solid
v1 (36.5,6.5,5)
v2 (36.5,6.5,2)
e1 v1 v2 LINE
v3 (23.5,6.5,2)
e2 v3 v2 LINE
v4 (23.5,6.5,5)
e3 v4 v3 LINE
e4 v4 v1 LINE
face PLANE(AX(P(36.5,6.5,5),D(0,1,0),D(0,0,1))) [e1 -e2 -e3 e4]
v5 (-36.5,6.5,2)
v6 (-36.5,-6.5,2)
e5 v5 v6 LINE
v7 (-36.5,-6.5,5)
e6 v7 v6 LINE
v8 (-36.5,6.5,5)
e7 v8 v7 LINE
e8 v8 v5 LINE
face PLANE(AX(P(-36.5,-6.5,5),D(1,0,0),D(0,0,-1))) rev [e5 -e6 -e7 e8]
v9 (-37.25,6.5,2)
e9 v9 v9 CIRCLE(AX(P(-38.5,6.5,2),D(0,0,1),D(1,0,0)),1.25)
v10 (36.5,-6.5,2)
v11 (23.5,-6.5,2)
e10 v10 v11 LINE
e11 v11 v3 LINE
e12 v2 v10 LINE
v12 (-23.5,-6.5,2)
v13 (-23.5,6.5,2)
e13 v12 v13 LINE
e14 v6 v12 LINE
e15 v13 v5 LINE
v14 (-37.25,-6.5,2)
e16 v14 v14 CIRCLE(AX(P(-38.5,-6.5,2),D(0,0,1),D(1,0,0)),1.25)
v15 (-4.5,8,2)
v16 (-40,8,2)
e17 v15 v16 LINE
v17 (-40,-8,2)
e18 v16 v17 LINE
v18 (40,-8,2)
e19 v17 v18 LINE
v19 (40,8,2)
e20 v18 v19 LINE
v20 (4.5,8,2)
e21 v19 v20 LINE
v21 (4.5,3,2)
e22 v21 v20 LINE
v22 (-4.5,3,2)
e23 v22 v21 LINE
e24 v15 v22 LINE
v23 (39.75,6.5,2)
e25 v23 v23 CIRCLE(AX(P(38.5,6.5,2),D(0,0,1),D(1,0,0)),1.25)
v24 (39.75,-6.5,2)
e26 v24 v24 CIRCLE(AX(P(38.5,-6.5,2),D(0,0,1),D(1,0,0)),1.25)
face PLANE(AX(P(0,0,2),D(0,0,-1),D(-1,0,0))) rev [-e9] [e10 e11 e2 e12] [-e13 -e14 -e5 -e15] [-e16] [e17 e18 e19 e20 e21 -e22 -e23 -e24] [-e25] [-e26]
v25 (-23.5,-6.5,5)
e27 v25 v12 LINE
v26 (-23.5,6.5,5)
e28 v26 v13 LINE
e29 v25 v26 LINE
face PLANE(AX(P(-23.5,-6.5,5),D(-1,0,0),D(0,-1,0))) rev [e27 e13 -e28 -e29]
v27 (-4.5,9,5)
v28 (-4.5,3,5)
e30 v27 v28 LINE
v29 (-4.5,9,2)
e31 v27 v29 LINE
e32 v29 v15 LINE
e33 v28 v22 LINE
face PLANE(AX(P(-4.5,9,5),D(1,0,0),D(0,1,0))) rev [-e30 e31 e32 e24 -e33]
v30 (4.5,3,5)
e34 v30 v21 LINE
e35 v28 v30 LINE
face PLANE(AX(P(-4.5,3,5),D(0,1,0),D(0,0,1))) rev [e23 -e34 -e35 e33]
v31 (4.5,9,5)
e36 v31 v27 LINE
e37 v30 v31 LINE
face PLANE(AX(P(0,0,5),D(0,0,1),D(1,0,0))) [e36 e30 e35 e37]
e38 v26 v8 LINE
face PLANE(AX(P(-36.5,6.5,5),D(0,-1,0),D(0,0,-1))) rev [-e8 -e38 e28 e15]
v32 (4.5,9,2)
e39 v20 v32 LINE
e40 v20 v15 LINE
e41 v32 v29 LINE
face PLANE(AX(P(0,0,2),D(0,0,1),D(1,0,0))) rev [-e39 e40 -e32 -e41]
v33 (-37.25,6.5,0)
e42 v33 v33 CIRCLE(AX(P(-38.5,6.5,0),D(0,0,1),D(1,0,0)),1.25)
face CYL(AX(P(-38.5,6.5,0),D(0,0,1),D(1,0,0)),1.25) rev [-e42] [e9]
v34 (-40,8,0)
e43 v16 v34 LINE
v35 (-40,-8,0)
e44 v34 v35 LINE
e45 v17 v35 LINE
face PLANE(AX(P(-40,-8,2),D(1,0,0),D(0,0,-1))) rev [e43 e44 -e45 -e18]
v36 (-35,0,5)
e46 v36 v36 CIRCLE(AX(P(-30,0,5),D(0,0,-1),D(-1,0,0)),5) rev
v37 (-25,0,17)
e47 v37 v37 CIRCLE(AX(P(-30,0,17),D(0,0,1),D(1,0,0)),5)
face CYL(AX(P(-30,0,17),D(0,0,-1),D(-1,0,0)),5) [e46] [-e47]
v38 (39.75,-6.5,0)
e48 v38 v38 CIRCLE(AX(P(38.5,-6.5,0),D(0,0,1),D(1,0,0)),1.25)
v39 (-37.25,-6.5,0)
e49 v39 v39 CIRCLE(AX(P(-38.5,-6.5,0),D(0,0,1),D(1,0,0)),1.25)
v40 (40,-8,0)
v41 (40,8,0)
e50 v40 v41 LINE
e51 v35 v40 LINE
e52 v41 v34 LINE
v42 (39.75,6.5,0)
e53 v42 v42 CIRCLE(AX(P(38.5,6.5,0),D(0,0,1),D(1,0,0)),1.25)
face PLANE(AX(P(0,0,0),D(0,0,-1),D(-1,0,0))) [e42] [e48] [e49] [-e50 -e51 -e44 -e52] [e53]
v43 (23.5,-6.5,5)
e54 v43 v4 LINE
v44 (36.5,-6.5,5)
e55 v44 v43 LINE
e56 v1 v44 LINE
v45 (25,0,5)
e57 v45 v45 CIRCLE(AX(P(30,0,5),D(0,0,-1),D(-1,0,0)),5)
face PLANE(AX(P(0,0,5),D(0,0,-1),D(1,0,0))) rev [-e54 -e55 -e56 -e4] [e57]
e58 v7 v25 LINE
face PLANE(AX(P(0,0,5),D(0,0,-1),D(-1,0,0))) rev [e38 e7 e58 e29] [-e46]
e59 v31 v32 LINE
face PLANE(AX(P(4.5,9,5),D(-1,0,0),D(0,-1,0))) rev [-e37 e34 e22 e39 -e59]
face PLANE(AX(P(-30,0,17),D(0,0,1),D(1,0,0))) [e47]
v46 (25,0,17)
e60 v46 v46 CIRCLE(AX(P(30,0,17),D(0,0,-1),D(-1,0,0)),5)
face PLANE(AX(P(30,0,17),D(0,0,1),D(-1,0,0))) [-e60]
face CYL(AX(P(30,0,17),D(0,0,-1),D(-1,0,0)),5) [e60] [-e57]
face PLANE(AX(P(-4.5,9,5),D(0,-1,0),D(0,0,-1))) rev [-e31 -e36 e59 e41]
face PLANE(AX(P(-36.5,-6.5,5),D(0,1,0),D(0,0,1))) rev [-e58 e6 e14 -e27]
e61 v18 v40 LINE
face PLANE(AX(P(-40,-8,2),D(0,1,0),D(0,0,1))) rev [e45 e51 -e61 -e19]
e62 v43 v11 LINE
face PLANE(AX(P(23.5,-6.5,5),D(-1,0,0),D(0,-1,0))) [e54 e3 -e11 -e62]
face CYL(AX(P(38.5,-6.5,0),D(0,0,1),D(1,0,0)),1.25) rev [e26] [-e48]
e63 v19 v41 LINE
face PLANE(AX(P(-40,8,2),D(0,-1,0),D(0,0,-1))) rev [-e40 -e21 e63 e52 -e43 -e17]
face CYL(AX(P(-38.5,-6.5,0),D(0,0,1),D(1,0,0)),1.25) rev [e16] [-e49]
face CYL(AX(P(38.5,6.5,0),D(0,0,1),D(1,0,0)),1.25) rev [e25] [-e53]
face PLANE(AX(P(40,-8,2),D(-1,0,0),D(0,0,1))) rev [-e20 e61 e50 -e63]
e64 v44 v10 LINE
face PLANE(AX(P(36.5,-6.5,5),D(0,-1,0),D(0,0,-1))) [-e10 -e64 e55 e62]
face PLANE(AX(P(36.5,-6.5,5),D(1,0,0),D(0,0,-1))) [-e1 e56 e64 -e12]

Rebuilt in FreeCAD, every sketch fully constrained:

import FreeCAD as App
import Part
import Sketcher

V = App.Vector
Q = App.Units.Quantity


def add_polygon(sketch, points):
    """Adds a closed chain of lines whose ends are joined by coincident constraints."""
    first, n = sketch.GeometryCount, len(points)
    for a, b in zip(points, points[1:] + points[:1]):
        sketch.addGeometry(Part.LineSegment(App.Vector(*a, 0), App.Vector(*b, 0)), False)
    for i in range(n):
        sketch.addConstraint(Sketcher.Constraint("Coincident", first + i, 2, first + (i + 1) % n, 1))

doc = App.newDocument("Part")
params = doc.addObject("Spreadsheet::Sheet", "Params")
for row, (alias, value) in enumerate([
    ("sketch1_width", "80 mm"),
    ("sketch1_height", "16 mm"),
    ("pad1_length", "2 mm"),
    ("sketch2_diameter", "2.5 mm"),
    ("sketch3_width", "13 mm"),
    ("pad2_length", "3 mm"),
    ("sketch4_diameter", "10 mm"),
    ("pad3_length", "12 mm"),
    ("sketch5_width", "9 mm"),
    ("sketch5_height", "6 mm"),
    ("pad4_length", "3 mm"),
], start=1):
    params.set(f"A{row}", alias)
    params.set(f"B{row}", "=" + value)
    params.setAlias(f"B{row}", alias)

body = doc.addObject("PartDesign::Body", "Body")

sketch1 = doc.addObject("Sketcher::SketchObject", "Sketch")
body.addObject(sketch1)
sketch1.AttachmentSupport = (doc.XY_Plane, [""])
sketch1.MapMode = "FlatFace"
add_polygon(sketch1, [(-40, 8), (-40, -8), (40, -8), (40, 8)])
sketch1.addConstraint(Sketcher.Constraint("Vertical", 0))
sketch1.addConstraint(Sketcher.Constraint("Horizontal", 1))
sketch1.addConstraint(Sketcher.Constraint("Vertical", 2))
sketch1.addConstraint(Sketcher.Constraint("Horizontal", 3))
sketch1.addConstraint(Sketcher.Constraint("Symmetric", 0, 2, 2, 2, -1, 1))
sketch1.addConstraint(Sketcher.Constraint("DistanceX", 1, 1, 1, 2, Q("80 mm")))
sketch1.addConstraint(Sketcher.Constraint("DistanceY", 0, 2, 0, 1, Q("16 mm")))
sketch1.setExpression("Constraints[9]", "Params.sketch1_width")
sketch1.setExpression("Constraints[10]", "Params.sketch1_height")
pad1 = doc.addObject("PartDesign::Pad", "Pad")
body.addObject(pad1)
pad1.Profile = sketch1
pad1.setExpression("Length", "Params.pad1_length")

sketch2 = doc.addObject("Sketcher::SketchObject", "Sketch001")
body.addObject(sketch2)
sketch2.AttachmentSupport = (doc.XY_Plane, [""])
sketch2.MapMode = "FlatFace"
sketch2.AttachmentOffset = App.Placement(V(0, 0, 2), App.Rotation())
sketch2.addGeometry(Part.Circle(V(-38.5, 6.5, 0), V(0, 0, 1), 1.2), False)
sketch2.addGeometry(Part.Circle(V(38.5, 6.5, 0), V(0, 0, 1), 1.2), False)
sketch2.addGeometry(Part.Circle(V(38.5, -6.5, 0), V(0, 0, 1), 1.2), False)
sketch2.addGeometry(Part.Circle(V(-38.5, -6.5, 0), V(0, 0, 1), 1.2), False)
sketch2.addConstraint(Sketcher.Constraint("Equal", 0, 1))
sketch2.addConstraint(Sketcher.Constraint("Equal", 1, 2))
sketch2.addConstraint(Sketcher.Constraint("Equal", 2, 3))
sketch2.addConstraint(Sketcher.Constraint("Symmetric", 0, 3, 2, 3, -1, 1))
sketch2.addConstraint(Sketcher.Constraint("Symmetric", 1, 3, 3, 3, -1, 1))
sketch2.addConstraint(Sketcher.Constraint("Symmetric", 0, 3, 1, 3, -2))
sketch2.addConstraint(Sketcher.Constraint("Diameter", 0, Q("2.5 mm")))
sketch2.addConstraint(Sketcher.Constraint("DistanceX", 0, 3, 1, 3, Q("77 mm")))
sketch2.addConstraint(Sketcher.Constraint("DistanceY", 2, 3, 1, 3, Q("13 mm")))
sketch2.setExpression("Constraints[6]", "Params.sketch2_diameter")
pocket1 = doc.addObject("PartDesign::Pocket", "Pocket")
body.addObject(pocket1)
pocket1.Profile = sketch2
pocket1.Type = "ThroughAll"

sketch3 = doc.addObject("Sketcher::SketchObject", "Sketch002")
body.addObject(sketch3)
sketch3.AttachmentSupport = (doc.XY_Plane, [""])
sketch3.MapMode = "FlatFace"
sketch3.AttachmentOffset = App.Placement(V(0, 0, 2), App.Rotation())
add_polygon(sketch3, [(-36, 6), (-36, -6), (-24, -6), (-24, 6)])
sketch3.addConstraint(Sketcher.Constraint("Vertical", 0))
sketch3.addConstraint(Sketcher.Constraint("Horizontal", 1))
sketch3.addConstraint(Sketcher.Constraint("Vertical", 2))
sketch3.addConstraint(Sketcher.Constraint("Horizontal", 3))
sketch3.addConstraint(Sketcher.Constraint("Equal", 3, 0))
sketch3.addConstraint(Sketcher.Constraint("DistanceX", 1, 1, 1, 2, Q("13 mm")))
sketch3.addConstraint(Sketcher.Constraint("DistanceX", 0, 2, -1, 1, Q("36.5 mm")))
sketch3.addConstraint(Sketcher.Constraint("DistanceY", 0, 2, -1, 1, Q("6.5 mm")))
sketch3.setExpression("Constraints[9]", "Params.sketch3_width")
pad2 = doc.addObject("PartDesign::Pad", "Pad001")
body.addObject(pad2)
pad2.Profile = sketch3
pad2.setExpression("Length", "Params.pad2_length")

sketch4 = doc.addObject("Sketcher::SketchObject", "Sketch003")
body.addObject(sketch4)
sketch4.AttachmentSupport = (doc.XY_Plane, [""])
sketch4.MapMode = "FlatFace"
sketch4.AttachmentOffset = App.Placement(V(0, 0, 5), App.Rotation())
sketch4.addGeometry(Part.Circle(V(-30, 0, 0), V(0, 0, 1), 5), False)
sketch4.addConstraint(Sketcher.Constraint("PointOnObject", 0, 3, -1))
sketch4.addConstraint(Sketcher.Constraint("Diameter", 0, Q("10 mm")))
sketch4.addConstraint(Sketcher.Constraint("DistanceX", 0, 3, -1, 1, Q("30 mm")))
sketch4.setExpression("Constraints[1]", "Params.sketch4_diameter")
pad3 = doc.addObject("PartDesign::Pad", "Pad002")
body.addObject(pad3)
pad3.Profile = sketch4
pad3.setExpression("Length", "Params.pad3_length")
doc.recompute()

mirrored = doc.addObject("PartDesign::Mirrored", "Mirrored")
body.addObject(mirrored)
mirrored.Originals = [pad2, pad3]
mirrored.MirrorPlane = (doc.YZ_Plane, [""])
body.Tip = mirrored

sketch5 = doc.addObject("Sketcher::SketchObject", "Sketch004")
body.addObject(sketch5)
sketch5.AttachmentSupport = (doc.XY_Plane, [""])
sketch5.MapMode = "FlatFace"
sketch5.AttachmentOffset = App.Placement(V(0, 0, 2), App.Rotation())
add_polygon(sketch5, [(-4, 9), (-4, 3), (4, 3), (4, 9)])
sketch5.addConstraint(Sketcher.Constraint("Vertical", 0))
sketch5.addConstraint(Sketcher.Constraint("Horizontal", 1))
sketch5.addConstraint(Sketcher.Constraint("Vertical", 2))
sketch5.addConstraint(Sketcher.Constraint("Horizontal", 3))
sketch5.addConstraint(Sketcher.Constraint("DistanceX", 1, 1, 1, 2, Q("9 mm")))
sketch5.addConstraint(Sketcher.Constraint("DistanceY", 0, 2, 0, 1, Q("6 mm")))
sketch5.addConstraint(Sketcher.Constraint("DistanceY", -1, 1, 0, 2, Q("3 mm")))
sketch5.addConstraint(Sketcher.Constraint("DistanceX", 0, 2, -1, 1, Q("4.5 mm")))
sketch5.setExpression("Constraints[8]", "Params.sketch5_width")
sketch5.setExpression("Constraints[9]", "Params.sketch5_height")
pad4 = doc.addObject("PartDesign::Pad", "Pad003")
body.addObject(pad4)
pad4.Profile = sketch5
pad4.setExpression("Length", "Params.pad4_length")

doc.recompute()
